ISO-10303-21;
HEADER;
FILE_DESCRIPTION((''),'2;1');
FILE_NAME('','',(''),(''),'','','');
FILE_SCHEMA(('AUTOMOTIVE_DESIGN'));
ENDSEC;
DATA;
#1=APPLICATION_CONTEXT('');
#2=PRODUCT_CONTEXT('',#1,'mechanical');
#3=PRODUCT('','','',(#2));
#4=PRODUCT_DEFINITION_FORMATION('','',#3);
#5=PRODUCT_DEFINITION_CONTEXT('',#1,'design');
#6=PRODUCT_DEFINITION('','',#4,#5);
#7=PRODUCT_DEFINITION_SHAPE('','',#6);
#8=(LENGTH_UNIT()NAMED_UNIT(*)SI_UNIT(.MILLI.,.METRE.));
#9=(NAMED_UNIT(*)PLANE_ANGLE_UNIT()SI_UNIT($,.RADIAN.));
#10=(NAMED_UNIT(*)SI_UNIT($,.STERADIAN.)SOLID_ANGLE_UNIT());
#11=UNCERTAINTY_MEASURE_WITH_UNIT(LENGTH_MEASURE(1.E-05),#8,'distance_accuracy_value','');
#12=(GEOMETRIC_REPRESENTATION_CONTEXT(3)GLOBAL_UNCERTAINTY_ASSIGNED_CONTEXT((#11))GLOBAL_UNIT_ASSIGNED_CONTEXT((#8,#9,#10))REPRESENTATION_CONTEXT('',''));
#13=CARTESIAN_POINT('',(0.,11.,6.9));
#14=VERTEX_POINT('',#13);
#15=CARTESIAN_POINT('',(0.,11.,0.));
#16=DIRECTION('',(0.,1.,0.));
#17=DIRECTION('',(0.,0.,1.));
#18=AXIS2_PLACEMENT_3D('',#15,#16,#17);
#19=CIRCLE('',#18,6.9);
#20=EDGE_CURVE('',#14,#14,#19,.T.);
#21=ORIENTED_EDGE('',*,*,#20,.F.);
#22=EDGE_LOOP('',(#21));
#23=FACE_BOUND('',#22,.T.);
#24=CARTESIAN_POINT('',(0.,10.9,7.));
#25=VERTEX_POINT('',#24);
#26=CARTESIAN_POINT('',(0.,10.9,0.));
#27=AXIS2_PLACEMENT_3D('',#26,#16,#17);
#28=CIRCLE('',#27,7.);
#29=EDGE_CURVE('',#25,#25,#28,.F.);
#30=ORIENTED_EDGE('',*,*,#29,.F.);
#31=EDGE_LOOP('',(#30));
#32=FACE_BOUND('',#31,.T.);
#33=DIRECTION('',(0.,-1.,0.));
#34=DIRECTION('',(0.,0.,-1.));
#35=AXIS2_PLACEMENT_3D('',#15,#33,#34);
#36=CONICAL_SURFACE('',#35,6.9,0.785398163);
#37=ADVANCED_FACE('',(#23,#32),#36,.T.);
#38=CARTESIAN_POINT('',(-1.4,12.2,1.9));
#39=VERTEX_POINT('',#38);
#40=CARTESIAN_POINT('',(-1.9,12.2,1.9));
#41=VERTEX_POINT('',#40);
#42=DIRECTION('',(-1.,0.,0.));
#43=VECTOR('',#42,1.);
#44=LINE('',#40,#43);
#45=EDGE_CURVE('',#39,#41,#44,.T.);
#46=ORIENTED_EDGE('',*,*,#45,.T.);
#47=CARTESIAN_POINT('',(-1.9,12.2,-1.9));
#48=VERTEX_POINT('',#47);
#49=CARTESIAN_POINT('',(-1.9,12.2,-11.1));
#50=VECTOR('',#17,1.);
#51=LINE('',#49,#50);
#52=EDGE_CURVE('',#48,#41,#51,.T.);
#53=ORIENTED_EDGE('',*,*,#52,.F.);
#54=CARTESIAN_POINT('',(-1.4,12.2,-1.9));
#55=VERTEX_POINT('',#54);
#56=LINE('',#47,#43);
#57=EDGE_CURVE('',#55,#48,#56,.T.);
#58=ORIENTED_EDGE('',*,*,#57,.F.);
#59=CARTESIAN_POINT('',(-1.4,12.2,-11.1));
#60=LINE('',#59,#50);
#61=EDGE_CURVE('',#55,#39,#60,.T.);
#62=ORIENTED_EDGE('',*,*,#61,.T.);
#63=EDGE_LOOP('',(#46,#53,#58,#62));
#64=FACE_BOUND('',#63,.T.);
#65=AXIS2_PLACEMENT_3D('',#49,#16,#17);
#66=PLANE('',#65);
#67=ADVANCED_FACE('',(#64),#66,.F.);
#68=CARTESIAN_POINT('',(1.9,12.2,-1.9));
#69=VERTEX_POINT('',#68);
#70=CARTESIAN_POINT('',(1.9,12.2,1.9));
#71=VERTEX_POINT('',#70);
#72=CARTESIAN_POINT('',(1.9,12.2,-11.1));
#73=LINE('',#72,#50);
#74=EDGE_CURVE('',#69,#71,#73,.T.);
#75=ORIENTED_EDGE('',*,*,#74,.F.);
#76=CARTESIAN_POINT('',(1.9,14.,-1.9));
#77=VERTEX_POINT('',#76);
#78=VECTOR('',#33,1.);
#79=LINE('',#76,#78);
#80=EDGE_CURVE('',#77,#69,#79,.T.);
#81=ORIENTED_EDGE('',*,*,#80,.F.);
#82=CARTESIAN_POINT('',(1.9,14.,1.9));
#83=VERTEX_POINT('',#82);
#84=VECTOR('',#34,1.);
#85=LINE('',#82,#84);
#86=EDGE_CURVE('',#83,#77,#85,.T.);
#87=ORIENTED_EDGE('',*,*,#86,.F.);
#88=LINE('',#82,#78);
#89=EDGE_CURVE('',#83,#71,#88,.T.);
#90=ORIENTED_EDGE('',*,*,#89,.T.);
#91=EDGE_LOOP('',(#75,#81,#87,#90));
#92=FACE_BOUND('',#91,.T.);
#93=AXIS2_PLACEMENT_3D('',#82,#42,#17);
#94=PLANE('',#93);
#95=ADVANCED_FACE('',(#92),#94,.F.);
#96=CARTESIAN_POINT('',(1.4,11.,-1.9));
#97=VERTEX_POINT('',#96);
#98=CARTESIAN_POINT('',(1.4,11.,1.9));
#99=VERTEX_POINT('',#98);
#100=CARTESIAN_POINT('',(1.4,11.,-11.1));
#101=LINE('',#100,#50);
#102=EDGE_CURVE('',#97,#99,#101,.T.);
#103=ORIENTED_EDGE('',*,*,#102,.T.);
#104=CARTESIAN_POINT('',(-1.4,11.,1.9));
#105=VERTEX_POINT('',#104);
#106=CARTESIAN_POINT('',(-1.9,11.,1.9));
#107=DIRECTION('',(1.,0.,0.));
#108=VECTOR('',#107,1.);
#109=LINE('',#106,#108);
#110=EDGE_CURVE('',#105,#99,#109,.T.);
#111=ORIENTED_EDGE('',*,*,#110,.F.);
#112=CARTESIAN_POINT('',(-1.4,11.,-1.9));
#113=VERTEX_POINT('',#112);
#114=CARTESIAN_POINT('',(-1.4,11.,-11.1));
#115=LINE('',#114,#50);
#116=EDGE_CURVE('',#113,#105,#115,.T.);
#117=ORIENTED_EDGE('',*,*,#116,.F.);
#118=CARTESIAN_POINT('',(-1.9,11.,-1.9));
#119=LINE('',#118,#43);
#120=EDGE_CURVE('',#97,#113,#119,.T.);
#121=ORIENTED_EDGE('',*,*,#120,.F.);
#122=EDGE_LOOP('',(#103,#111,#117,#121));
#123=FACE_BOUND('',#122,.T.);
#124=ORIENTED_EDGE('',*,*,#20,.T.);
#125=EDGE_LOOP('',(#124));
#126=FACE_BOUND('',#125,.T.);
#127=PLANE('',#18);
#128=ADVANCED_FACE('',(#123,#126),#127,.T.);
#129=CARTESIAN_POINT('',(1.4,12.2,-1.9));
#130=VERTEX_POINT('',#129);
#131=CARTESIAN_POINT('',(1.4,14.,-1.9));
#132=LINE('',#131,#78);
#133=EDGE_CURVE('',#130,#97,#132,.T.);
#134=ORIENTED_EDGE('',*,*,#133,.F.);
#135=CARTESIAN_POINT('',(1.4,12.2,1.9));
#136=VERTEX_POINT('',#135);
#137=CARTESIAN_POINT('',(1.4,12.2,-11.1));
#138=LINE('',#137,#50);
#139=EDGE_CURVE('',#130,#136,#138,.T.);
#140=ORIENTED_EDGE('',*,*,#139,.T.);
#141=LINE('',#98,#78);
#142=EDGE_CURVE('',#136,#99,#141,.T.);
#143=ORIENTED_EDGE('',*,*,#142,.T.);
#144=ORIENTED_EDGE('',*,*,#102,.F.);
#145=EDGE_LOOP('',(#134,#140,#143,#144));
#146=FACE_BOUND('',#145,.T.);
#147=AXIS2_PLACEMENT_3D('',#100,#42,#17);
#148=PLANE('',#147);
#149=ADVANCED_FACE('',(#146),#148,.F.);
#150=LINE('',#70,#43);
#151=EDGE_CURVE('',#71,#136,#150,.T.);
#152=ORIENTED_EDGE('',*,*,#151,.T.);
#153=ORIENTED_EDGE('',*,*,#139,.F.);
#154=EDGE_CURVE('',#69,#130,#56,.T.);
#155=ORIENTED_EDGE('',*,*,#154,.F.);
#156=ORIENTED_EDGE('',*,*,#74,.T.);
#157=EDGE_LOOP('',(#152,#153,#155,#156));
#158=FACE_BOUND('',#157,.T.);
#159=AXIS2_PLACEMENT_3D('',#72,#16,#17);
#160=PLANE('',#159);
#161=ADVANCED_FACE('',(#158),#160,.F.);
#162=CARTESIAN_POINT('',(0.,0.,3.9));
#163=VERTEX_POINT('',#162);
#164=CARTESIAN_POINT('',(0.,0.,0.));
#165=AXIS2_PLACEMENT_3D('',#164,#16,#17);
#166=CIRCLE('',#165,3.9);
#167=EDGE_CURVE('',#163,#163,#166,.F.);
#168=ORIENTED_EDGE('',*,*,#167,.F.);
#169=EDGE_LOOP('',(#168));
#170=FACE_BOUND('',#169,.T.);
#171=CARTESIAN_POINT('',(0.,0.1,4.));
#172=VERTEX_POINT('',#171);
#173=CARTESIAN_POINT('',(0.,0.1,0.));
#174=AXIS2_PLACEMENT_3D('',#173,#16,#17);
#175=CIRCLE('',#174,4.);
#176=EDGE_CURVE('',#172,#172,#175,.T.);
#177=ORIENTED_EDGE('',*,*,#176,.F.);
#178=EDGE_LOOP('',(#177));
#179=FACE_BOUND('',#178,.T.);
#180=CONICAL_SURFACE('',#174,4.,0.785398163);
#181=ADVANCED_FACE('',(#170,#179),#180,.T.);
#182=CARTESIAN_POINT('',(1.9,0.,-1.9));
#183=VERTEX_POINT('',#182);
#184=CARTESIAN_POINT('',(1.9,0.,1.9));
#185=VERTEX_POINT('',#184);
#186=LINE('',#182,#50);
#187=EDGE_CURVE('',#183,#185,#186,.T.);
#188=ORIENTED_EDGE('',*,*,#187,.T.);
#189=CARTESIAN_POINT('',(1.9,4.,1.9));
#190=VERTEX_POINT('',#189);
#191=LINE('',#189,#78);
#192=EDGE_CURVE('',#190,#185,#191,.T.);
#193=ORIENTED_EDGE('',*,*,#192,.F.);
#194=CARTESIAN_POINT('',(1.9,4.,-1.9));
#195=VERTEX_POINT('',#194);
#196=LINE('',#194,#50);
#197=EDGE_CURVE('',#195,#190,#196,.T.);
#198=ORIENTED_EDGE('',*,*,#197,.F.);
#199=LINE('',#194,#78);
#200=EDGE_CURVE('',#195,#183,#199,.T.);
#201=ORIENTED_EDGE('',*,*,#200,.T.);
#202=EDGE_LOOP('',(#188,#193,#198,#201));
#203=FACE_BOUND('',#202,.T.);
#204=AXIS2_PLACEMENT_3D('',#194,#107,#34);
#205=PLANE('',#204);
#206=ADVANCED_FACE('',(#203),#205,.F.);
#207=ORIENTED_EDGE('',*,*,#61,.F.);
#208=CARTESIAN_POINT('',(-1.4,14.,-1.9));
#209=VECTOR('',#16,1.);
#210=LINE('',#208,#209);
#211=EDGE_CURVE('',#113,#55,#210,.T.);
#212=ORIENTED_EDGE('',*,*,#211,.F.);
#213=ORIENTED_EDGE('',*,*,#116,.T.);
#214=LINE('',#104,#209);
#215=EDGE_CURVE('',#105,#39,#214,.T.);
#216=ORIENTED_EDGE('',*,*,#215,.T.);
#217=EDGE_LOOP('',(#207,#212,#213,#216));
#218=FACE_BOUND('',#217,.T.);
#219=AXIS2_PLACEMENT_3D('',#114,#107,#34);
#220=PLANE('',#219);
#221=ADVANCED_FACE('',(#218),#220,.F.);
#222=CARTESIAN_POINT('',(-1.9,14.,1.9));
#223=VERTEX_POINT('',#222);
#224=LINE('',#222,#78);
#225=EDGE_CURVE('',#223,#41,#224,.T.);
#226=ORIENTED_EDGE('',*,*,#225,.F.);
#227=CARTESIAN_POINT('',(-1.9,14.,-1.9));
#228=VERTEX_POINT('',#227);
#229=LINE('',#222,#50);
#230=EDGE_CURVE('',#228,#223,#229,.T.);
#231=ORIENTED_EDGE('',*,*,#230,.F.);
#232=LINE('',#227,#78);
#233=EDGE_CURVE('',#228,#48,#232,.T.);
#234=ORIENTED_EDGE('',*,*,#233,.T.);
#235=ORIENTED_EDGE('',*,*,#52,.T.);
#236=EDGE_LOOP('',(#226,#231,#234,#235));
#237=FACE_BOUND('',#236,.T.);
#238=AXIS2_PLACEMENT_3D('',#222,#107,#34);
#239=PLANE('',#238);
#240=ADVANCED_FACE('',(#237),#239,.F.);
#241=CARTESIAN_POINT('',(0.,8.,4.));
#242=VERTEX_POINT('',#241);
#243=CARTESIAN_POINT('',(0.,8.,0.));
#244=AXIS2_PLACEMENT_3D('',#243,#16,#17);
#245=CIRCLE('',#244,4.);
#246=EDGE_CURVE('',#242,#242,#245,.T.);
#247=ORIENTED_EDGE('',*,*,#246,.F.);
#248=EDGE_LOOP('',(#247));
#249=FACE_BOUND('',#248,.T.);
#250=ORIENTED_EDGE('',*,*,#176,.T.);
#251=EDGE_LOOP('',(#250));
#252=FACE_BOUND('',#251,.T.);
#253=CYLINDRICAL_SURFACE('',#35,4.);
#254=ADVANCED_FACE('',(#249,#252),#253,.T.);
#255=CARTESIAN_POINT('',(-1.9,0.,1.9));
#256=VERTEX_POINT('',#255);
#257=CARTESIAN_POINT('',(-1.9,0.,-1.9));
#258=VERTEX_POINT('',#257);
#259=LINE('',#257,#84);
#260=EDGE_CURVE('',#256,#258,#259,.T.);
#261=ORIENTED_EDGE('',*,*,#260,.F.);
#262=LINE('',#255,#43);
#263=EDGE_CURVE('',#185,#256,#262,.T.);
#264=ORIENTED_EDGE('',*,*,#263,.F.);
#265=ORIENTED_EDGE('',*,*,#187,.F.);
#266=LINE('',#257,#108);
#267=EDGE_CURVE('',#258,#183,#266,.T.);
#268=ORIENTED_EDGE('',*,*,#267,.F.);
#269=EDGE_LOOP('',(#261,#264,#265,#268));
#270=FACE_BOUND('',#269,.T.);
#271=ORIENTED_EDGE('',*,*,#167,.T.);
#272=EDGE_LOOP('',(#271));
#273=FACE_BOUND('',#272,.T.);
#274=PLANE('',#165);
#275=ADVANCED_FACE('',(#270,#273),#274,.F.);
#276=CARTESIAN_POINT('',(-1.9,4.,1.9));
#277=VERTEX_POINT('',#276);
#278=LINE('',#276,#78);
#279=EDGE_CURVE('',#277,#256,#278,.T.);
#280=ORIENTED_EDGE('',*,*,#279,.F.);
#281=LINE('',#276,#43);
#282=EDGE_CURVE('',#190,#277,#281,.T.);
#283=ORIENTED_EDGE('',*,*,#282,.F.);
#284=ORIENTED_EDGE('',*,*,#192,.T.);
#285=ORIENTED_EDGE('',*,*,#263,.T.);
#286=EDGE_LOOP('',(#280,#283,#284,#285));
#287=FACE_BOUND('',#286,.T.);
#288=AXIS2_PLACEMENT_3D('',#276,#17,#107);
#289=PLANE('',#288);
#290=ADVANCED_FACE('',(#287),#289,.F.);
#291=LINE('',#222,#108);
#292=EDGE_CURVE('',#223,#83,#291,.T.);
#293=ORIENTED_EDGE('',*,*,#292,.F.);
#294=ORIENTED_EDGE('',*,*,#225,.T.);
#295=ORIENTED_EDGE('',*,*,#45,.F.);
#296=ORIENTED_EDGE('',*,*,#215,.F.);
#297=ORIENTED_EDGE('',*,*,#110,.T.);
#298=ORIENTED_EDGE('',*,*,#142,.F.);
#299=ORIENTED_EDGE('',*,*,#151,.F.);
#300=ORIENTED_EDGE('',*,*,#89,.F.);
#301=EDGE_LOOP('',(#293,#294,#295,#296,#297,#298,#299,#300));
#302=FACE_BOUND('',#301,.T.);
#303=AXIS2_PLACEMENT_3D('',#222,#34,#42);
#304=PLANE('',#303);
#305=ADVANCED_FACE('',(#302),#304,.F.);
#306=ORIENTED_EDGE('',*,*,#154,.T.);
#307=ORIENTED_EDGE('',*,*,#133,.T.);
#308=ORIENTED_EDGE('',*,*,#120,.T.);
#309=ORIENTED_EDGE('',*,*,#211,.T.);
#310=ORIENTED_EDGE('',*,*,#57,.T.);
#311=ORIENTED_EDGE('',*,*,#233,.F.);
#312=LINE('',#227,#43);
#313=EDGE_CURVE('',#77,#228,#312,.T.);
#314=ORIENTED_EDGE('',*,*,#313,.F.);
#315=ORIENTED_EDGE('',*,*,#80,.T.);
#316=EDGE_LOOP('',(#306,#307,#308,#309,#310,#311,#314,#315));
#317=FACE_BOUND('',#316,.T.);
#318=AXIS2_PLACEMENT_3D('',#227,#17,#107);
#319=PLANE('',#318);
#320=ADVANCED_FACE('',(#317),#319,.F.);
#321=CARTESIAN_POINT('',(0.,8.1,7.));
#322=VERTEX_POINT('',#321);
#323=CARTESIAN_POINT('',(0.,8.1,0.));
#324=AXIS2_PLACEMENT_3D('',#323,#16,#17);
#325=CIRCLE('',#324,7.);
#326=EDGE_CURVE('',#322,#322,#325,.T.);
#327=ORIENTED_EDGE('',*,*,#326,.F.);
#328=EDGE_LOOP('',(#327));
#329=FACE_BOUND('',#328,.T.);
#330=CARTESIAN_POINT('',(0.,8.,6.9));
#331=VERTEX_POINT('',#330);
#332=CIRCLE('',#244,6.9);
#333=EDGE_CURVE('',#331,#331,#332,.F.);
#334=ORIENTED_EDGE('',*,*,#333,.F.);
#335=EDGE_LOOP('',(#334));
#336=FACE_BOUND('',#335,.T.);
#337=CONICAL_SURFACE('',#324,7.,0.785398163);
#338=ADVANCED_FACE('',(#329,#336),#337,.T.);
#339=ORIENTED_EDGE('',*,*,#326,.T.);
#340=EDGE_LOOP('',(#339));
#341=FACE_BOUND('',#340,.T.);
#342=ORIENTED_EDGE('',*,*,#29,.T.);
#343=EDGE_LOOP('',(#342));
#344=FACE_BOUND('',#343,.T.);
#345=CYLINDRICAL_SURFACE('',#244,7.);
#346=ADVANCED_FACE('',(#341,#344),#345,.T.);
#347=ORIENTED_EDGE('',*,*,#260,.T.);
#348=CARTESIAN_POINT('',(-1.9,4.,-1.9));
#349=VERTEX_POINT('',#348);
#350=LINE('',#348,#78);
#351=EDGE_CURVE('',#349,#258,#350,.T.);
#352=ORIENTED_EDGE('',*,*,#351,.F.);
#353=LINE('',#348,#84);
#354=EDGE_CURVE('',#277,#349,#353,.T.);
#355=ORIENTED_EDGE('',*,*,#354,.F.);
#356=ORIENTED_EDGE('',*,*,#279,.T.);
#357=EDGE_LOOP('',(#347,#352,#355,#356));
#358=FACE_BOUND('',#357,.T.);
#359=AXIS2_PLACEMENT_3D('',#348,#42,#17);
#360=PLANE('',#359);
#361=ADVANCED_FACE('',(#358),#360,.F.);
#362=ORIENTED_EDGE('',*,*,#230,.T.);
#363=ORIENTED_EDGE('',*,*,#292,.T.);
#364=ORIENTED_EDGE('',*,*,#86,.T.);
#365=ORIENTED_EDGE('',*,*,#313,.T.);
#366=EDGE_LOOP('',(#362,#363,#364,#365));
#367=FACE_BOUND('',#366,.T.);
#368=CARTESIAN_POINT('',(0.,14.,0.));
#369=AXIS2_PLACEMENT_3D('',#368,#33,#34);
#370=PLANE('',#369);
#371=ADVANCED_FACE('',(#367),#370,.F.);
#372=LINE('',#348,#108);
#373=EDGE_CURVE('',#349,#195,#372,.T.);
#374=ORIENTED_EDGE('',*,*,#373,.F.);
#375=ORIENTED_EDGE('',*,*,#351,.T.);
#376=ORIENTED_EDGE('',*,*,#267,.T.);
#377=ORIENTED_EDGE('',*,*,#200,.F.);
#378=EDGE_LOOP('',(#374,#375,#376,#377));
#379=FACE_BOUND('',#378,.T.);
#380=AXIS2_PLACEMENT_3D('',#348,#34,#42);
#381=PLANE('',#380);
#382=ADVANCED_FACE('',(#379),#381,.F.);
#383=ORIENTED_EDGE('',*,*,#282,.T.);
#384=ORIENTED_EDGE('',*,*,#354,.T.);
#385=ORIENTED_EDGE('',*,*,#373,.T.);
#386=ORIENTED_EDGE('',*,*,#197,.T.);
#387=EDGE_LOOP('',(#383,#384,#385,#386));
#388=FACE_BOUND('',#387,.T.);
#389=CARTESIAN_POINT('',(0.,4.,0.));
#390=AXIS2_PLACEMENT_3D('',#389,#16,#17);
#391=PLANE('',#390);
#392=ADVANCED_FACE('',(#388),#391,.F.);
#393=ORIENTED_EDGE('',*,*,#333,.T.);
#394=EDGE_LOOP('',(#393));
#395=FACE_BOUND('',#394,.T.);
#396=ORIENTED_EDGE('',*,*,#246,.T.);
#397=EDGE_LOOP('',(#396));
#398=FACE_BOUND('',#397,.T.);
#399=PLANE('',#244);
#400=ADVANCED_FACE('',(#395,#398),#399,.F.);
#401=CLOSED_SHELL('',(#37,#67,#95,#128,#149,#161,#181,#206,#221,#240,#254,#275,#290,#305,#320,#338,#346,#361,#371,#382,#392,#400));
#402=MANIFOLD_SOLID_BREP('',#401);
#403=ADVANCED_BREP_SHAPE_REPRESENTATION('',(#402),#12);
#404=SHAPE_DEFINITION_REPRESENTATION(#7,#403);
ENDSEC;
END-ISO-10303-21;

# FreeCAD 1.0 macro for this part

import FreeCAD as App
import Part
import Sketcher
Q = App.Units.Quantity


def edges_at(feature, points):
    """Names of the edges that pass closest to the given points."""
    edges = feature.Shape.Edges
    near = lambda p: min(range(len(edges)), key=lambda i: edges[i].distToShape(Part.Vertex(*p))[0])
    return sorted({f"Edge{near(p) + 1}" for p in points})

doc = App.newDocument("Part")
body = doc.addObject("PartDesign::Body", "Body")

sketch1 = body.newObject("Sketcher::SketchObject", "Sketch")
sketch1.AttachmentSupport = (doc.getObject("XZ_Plane"), [""])
sketch1.MapMode = "FlatFace"
sketch1.addGeometry(Part.Circle(App.Vector(0, 0, 0), App.Vector(0, 0, 1), 4), False)
sketch1.addConstraint(Sketcher.Constraint("Coincident", 0, 3, -1, 1))
sketch1.addConstraint(Sketcher.Constraint("Diameter", 0, Q("8 mm")))
pad1 = body.newObject("PartDesign::Pad", "Pad")
pad1.Profile = sketch1
pad1.Length = 11
pad1.Reversed = True

sketch2 = body.newObject("Sketcher::SketchObject", "Sketch001")
sketch2.AttachmentSupport = (doc.getObject("XZ_Plane"), [""])
sketch2.MapMode = "FlatFace"
sketch2.addGeometry(Part.LineSegment(App.Vector(-1.9, 1.9, 0), App.Vector(-1.9, -1.9, 0)), False)
sketch2.addGeometry(Part.LineSegment(App.Vector(-1.9, -1.9, 0), App.Vector(1.9, -1.9, 0)), False)
sketch2.addGeometry(Part.LineSegment(App.Vector(1.9, -1.9, 0), App.Vector(1.9, 1.9, 0)), False)
sketch2.addGeometry(Part.LineSegment(App.Vector(1.9, 1.9, 0), App.Vector(-1.9, 1.9, 0)), False)
sketch2.addConstraint(Sketcher.Constraint("Coincident", 0, 2, 1, 1))
sketch2.addConstraint(Sketcher.Constraint("Coincident", 1, 2, 2, 1))
sketch2.addConstraint(Sketcher.Constraint("Coincident", 2, 2, 3, 1))
sketch2.addConstraint(Sketcher.Constraint("Coincident", 3, 2, 0, 1))
sketch2.addConstraint(Sketcher.Constraint("Vertical", 0))
sketch2.addConstraint(Sketcher.Constraint("Horizontal", 1))
sketch2.addConstraint(Sketcher.Constraint("Vertical", 2))
sketch2.addConstraint(Sketcher.Constraint("Horizontal", 3))
sketch2.addConstraint(Sketcher.Constraint("Symmetric", 0, 2, 2, 2, -1, 1))
sketch2.addConstraint(Sketcher.Constraint("Equal", 3, 0))
sketch2.addConstraint(Sketcher.Constraint("DistanceX", 1, 1, 1, 2, Q("3.8 mm")))
pocket1 = body.newObject("PartDesign::Pocket", "Pocket")
pocket1.Profile = sketch2
pocket1.Length = 4

sketch3 = body.newObject("Sketcher::SketchObject", "Sketch002")
sketch3.AttachmentSupport = (doc.getObject("XZ_Plane"), [""])
sketch3.MapMode = "FlatFace"
sketch3.AttachmentOffset = App.Placement(App.Vector(0, 0, -11), App.Rotation())
sketch3.addGeometry(Part.LineSegment(App.Vector(-1.9, -1.9, 0), App.Vector(-1.9, 1.9, 0)), False)
sketch3.addGeometry(Part.LineSegment(App.Vector(-1.9, 1.9, 0), App.Vector(1.9, 1.9, 0)), False)
sketch3.addGeometry(Part.LineSegment(App.Vector(1.9, 1.9, 0), App.Vector(1.9, -1.9, 0)), False)
sketch3.addGeometry(Part.LineSegment(App.Vector(1.9, -1.9, 0), App.Vector(-1.9, -1.9, 0)), False)
sketch3.addConstraint(Sketcher.Constraint("Coincident", 0, 2, 1, 1))
sketch3.addConstraint(Sketcher.Constraint("Coincident", 1, 2, 2, 1))
sketch3.addConstraint(Sketcher.Constraint("Coincident", 2, 2, 3, 1))
sketch3.addConstraint(Sketcher.Constraint("Coincident", 3, 2, 0, 1))
sketch3.addConstraint(Sketcher.Constraint("Vertical", 0))
sketch3.addConstraint(Sketcher.Constraint("Horizontal", 1))
sketch3.addConstraint(Sketcher.Constraint("Vertical", 2))
sketch3.addConstraint(Sketcher.Constraint("Horizontal", 3))
sketch3.addConstraint(Sketcher.Constraint("Symmetric", 0, 2, 2, 2, -1, 1))
sketch3.addConstraint(Sketcher.Constraint("Equal", 3, 0))
sketch3.addConstraint(Sketcher.Constraint("DistanceX", 1, 1, 1, 2, Q("3.8 mm")))
pad2 = body.newObject("PartDesign::Pad", "Pad001")
pad2.Profile = sketch3
pad2.Length = 3
pad2.Reversed = True

sketch4 = body.newObject("Sketcher::SketchObject", "Sketch003")
sketch4.AttachmentSupport = (doc.getObject("XY_Plane"), [""])
sketch4.MapMode = "FlatFace"
sketch4.AttachmentOffset = App.Placement(App.Vector(0, 0, 1.9), App.Rotation())
sketch4.addGeometry(Part.LineSegment(App.Vector(-1.9, 12.2, 0), App.Vector(-1.9, 11, 0)), False)
sketch4.addGeometry(Part.LineSegment(App.Vector(-1.9, 11, 0), App.Vector(-1.4, 11, 0)), False)
sketch4.addGeometry(Part.LineSegment(App.Vector(-1.4, 11, 0), App.Vector(-1.4, 12.2, 0)), False)
sketch4.addGeometry(Part.LineSegment(App.Vector(-1.4, 12.2, 0), App.Vector(-1.9, 12.2, 0)), False)
sketch4.addGeometry(Part.LineSegment(App.Vector(1.4, 12.2, 0), App.Vector(1.4, 11, 0)), False)
sketch4.addGeometry(Part.LineSegment(App.Vector(1.4, 11, 0), App.Vector(1.9, 11, 0)), False)
sketch4.addGeometry(Part.LineSegment(App.Vector(1.9, 11, 0), App.Vector(1.9, 12.2, 0)), False)
sketch4.addGeometry(Part.LineSegment(App.Vector(1.9, 12.2, 0), App.Vector(1.4, 12.2, 0)), False)
sketch4.addConstraint(Sketcher.Constraint("Coincident", 0, 2, 1, 1))
sketch4.addConstraint(Sketcher.Constraint("Coincident", 1, 2, 2, 1))
sketch4.addConstraint(Sketcher.Constraint("Coincident", 2, 2, 3, 1))
sketch4.addConstraint(Sketcher.Constraint("Coincident", 3, 2, 0, 1))
sketch4.addConstraint(Sketcher.Constraint("Coincident", 4, 2, 5, 1))
sketch4.addConstraint(Sketcher.Constraint("Coincident", 5, 2, 6, 1))
sketch4.addConstraint(Sketcher.Constraint("Coincident", 6, 2, 7, 1))
sketch4.addConstraint(Sketcher.Constraint("Coincident", 7, 2, 4, 1))
sketch4.addConstraint(Sketcher.Constraint("Vertical", 0))
sketch4.addConstraint(Sketcher.Constraint("Horizontal", 1))
sketch4.addConstraint(Sketcher.Constraint("Vertical", 2))
sketch4.addConstraint(Sketcher.Constraint("Horizontal", 3))
sketch4.addConstraint(Sketcher.Constraint("Vertical", 4))
sketch4.addConstraint(Sketcher.Constraint("Horizontal", 5))
sketch4.addConstraint(Sketcher.Constraint("Vertical", 6))
sketch4.addConstraint(Sketcher.Constraint("Horizontal", 7))
sketch4.addConstraint(Sketcher.Constraint("Symmetric", 1, 2, 4, 2, -2))
sketch4.addConstraint(Sketcher.Constraint("Symmetric", 3, 2, 6, 2, -2))
sketch4.addConstraint(Sketcher.Constraint("DistanceX", 1, 1, 1, 2, Q("0.5 mm")))
sketch4.addConstraint(Sketcher.Constraint("DistanceY", 0, 2, 0, 1, Q("1.2 mm")))
sketch4.addConstraint(Sketcher.Constraint("DistanceY", -1, 1, 0, 2, Q("11 mm")))
sketch4.addConstraint(Sketcher.Constraint("DistanceX", 0, 2, -1, 1, Q("1.9 mm")))
pocket2 = body.newObject("PartDesign::Pocket", "Pocket001")
pocket2.Profile = sketch4
pocket2.Length = 13

sketch5 = body.newObject("Sketcher::SketchObject", "Sketch004")
sketch5.AttachmentSupport = (doc.getObject("XZ_Plane"), [""])
sketch5.MapMode = "FlatFace"
sketch5.AttachmentOffset = App.Placement(App.Vector(0, 0, -11), App.Rotation())
sketch5.addGeometry(Part.Circle(App.Vector(0, 0, 0), App.Vector(0, 0, 1), 7), False)
sketch5.addConstraint(Sketcher.Constraint("Coincident", 0, 3, -1, 1))
sketch5.addConstraint(Sketcher.Constraint("Diameter", 0, Q("14 mm")))
pad3 = body.newObject("PartDesign::Pad", "Pad002")
pad3.Profile = sketch5
pad3.Length = 3
doc.recompute()

chamfer = body.newObject("PartDesign::Chamfer", "Chamfer")
chamfer.Base = (pad3, edges_at(pad3, [(-4, 0, 0), (-7, 11, 0), (-7, 8, 0)]))
chamfer.Size = 0.1

doc.recompute()
